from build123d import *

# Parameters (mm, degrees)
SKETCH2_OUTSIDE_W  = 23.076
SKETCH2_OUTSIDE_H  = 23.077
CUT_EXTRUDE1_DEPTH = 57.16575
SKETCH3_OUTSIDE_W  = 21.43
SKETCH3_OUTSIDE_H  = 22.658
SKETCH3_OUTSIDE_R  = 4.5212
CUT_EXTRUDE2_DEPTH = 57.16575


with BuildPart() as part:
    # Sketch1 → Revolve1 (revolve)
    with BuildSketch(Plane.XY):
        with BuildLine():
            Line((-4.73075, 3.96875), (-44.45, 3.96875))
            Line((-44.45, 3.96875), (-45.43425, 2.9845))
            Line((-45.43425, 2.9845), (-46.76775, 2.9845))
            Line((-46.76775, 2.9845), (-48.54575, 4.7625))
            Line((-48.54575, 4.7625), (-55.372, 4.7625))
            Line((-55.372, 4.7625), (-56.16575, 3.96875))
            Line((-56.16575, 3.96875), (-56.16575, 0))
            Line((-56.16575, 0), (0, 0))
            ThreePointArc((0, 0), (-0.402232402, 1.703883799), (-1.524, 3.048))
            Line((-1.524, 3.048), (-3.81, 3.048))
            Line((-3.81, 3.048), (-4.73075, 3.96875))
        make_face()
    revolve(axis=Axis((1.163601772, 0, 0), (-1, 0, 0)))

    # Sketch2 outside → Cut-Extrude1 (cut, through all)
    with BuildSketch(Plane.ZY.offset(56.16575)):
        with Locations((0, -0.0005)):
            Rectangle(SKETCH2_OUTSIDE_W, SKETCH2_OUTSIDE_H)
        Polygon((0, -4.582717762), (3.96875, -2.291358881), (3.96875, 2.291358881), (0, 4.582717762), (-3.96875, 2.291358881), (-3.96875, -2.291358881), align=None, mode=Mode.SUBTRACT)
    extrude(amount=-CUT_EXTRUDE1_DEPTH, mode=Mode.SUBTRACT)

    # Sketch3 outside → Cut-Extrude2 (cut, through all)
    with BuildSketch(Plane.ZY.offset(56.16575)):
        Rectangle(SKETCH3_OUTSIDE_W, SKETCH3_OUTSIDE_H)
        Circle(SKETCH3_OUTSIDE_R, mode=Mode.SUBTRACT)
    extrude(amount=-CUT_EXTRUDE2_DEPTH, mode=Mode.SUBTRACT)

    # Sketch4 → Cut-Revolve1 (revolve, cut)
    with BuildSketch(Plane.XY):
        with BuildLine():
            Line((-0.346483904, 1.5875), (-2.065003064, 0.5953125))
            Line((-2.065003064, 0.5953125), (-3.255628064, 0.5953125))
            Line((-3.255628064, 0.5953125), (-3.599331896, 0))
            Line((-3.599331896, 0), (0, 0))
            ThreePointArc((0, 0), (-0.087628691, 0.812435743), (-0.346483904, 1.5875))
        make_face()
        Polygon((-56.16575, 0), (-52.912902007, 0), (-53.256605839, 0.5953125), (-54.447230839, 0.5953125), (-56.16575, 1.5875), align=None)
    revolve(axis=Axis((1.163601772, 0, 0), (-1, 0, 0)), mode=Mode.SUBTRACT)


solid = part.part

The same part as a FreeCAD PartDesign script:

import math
import FreeCAD as App
import Part
import Sketcher

V = App.Vector
Q = App.Units.Quantity

doc = App.newDocument("Part")
body = doc.addObject("PartDesign::Body", "Body")

sketch1 = doc.addObject("Sketcher::SketchObject", "Sketch")
body.addObject(sketch1)
sketch1.AttachmentSupport = (doc.XY_Plane, [""])
sketch1.MapMode = "FlatFace"
sketch1.addGeometry([
    Part.LineSegment(V(-4.7, 4, 0), V(-44.5, 4, 0)),
    Part.LineSegment(V(-44.5, 4, 0), V(-45.4, 3, 0)),
    Part.LineSegment(V(-45.4, 3, 0), V(-46.8, 3, 0)),
    Part.LineSegment(V(-46.8, 3, 0), V(-48.5, 4.8, 0)),
    Part.LineSegment(V(-48.5, 4.8, 0), V(-55.4, 4.8, 0)),
    Part.LineSegment(V(-55.4, 4.8, 0), V(-56.2, 4, 0)),
    Part.LineSegment(V(-56.2, 4, 0), V(-56.2, 0, 0)),
    Part.LineSegment(V(-56.2, 0, 0), V(0, 0, 0)),
    Part.ArcOfCircle(Part.Circle(V(-3.8, 0, 0), V(0, 0, 1), 3.8), math.radians(0), math.radians(53)),
    Part.LineSegment(V(-1.5, 3, 0), V(-3.8, 3, 0)),
    Part.LineSegment(V(-3.8, 3, 0), V(-4.7, 4, 0)),
], False)
sketch1.addConstraint([
    Sketcher.Constraint("Coincident", 0, 2, 1, 1),
    Sketcher.Constraint("Coincident", 1, 2, 2, 1),
    Sketcher.Constraint("Coincident", 2, 2, 3, 1),
    Sketcher.Constraint("Coincident", 3, 2, 4, 1),
    Sketcher.Constraint("Coincident", 4, 2, 5, 1),
    Sketcher.Constraint("Coincident", 5, 2, 6, 1),
    Sketcher.Constraint("Coincident", 6, 2, 7, 1),
    Sketcher.Constraint("Coincident", 7, 2, 8, 1),
    Sketcher.Constraint("Coincident", 8, 2, 9, 1),
    Sketcher.Constraint("Coincident", 9, 2, 10, 1),
    Sketcher.Constraint("Coincident", 10, 2, 0, 1),
    Sketcher.Constraint("Horizontal", 0),
    Sketcher.Constraint("Horizontal", 2),
    Sketcher.Constraint("Horizontal", 4),
    Sketcher.Constraint("Vertical", 6),
    Sketcher.Constraint("Horizontal", 7),
    Sketcher.Constraint("Horizontal", 9),
    Sketcher.Constraint("Coincident", 7, 2, -1, 1),
    Sketcher.Constraint("PointOnObject", 8, 3, -1),
    Sketcher.Constraint("Perpendicular", 1, 3),
    Sketcher.Constraint("Perpendicular", 3, 5),
    Sketcher.Constraint("Perpendicular", 5, 10),
    Sketcher.Constraint("Horizontal", 0, 2, 5, 2),
    Sketcher.Constraint("Vertical", 8, 3, 9, 2),
    Sketcher.Constraint("Radius", 8, Q("0.15 in")),
    Sketcher.Constraint("Angle", 1, Q("-135 deg")),
    Sketcher.Constraint("DistanceX", 9, 2, 9, 1, Q("0.09 in")),
    Sketcher.Constraint("DistanceX", 0, 2, 8, 3, Q("1.6 in")),
    Sketcher.Constraint("DistanceX", 5, 2, 3, 2, Q("0.3 in")),
    Sketcher.Constraint("DistanceY", 6, 2, 6, 1, Q("0.15625 in")),
    Sketcher.Constraint("DistanceX", 4, 2, -1, 1, Q("2.18 in")),
    Sketcher.Constraint("DistanceX", 3, 2, 2, 2, Q("0.07 in")),
    Sketcher.Constraint("DistanceX", 2, 2, 2, 1, Q("0.0525 in")),
])
revolution = doc.addObject("PartDesign::Revolution", "Revolution")
body.addObject(revolution)
revolution.Profile = sketch1
revolution.ReferenceAxis = (sketch1, ["H_Axis"])
revolution.Angle = 360

sketch2 = doc.addObject("Sketcher::SketchObject", "Sketch001")
body.addObject(sketch2)
sketch2.AttachmentSupport = (doc.YZ_Plane, [""])
sketch2.MapMode = "FlatFace"
sketch2.AttachmentOffset = App.Placement(V(0, 0, -56.16575), App.Rotation())
sketch2.addGeometry([
    Part.LineSegment(V(11.5, -11.5, 0), V(-11.5, -11.5, 0)),
    Part.LineSegment(V(-11.5, -11.5, 0), V(-11.5, 11.5, 0)),
    Part.LineSegment(V(-11.5, 11.5, 0), V(11.5, 11.5, 0)),
    Part.LineSegment(V(11.5, 11.5, 0), V(11.5, -11.5, 0)),
    Part.LineSegment(V(-2.3, 4, 0), V(-4.6, 0, 0)),
    Part.LineSegment(V(-4.6, 0, 0), V(-2.3, -4, 0)),
    Part.LineSegment(V(-2.3, -4, 0), V(2.3, -4, 0)),
    Part.LineSegment(V(2.3, -4, 0), V(4.6, 0, 0)),
    Part.LineSegment(V(4.6, 0, 0), V(2.3, 4, 0)),
    Part.LineSegment(V(2.3, 4, 0), V(-2.3, 4, 0)),
], False)
sketch2.addConstraint([
    Sketcher.Constraint("Coincident", 0, 2, 1, 1),
    Sketcher.Constraint("Coincident", 1, 2, 2, 1),
    Sketcher.Constraint("Coincident", 2, 2, 3, 1),
    Sketcher.Constraint("Coincident", 3, 2, 0, 1),
    Sketcher.Constraint("Coincident", 4, 2, 5, 1),
    Sketcher.Constraint("Coincident", 5, 2, 6, 1),
    Sketcher.Constraint("Coincident", 6, 2, 7, 1),
    Sketcher.Constraint("Coincident", 7, 2, 8, 1),
    Sketcher.Constraint("Coincident", 8, 2, 9, 1),
    Sketcher.Constraint("Coincident", 9, 2, 4, 1),
    Sketcher.Constraint("Horizontal", 0),
    Sketcher.Constraint("Vertical", 1),
    Sketcher.Constraint("Horizontal", 2),
    Sketcher.Constraint("Vertical", 3),
    Sketcher.Constraint("Horizontal", 6),
    Sketcher.Constraint("Horizontal", 9),
    Sketcher.Constraint("Symmetric", 4, 2, 7, 2, -1, 1),
    Sketcher.Constraint("Symmetric", 5, 2, 8, 2, -1, 1),
    Sketcher.Constraint("PointOnObject", 4, 2, -1),
    Sketcher.Constraint("Parallel", 4, 7),
    Sketcher.Constraint("Vertical", 6, 2, 8, 2),
    Sketcher.Constraint("Angle", 4, Q("-120 deg")),
    Sketcher.Constraint("DistanceY", 5, 2, -1, 1, Q("0.15625 in")),
    Sketcher.Constraint("DistanceX", 0, 2, 0, 1, Q("23.077 mm")),
    Sketcher.Constraint("DistanceY", 1, 1, 1, 2, Q("23.076 mm")),
    Sketcher.Constraint("DistanceX", 0, 2, -1, 1, Q("11.539 mm")),
    Sketcher.Constraint("DistanceY", 0, 2, -1, 1, Q("11.538 mm")),
    Sketcher.Constraint("DistanceX", 6, 1, 6, 2, Q("4.582718 mm")),
])
pocket1 = doc.addObject("PartDesign::Pocket", "Pocket")
body.addObject(pocket1)
pocket1.Profile = sketch2
pocket1.Type = "ThroughAll"
pocket1.Reversed = True

sketch3 = doc.addObject("Sketcher::SketchObject", "Sketch002")
body.addObject(sketch3)
sketch3.AttachmentSupport = (doc.YZ_Plane, [""])
sketch3.MapMode = "FlatFace"
sketch3.AttachmentOffset = App.Placement(V(0, 0, -56.16575), App.Rotation())
sketch3.addGeometry([
    Part.LineSegment(V(11.3, -10.7, 0), V(-11.3, -10.7, 0)),
    Part.LineSegment(V(-11.3, -10.7, 0), V(-11.3, 10.7, 0)),
    Part.LineSegment(V(-11.3, 10.7, 0), V(11.3, 10.7, 0)),
    Part.LineSegment(V(11.3, 10.7, 0), V(11.3, -10.7, 0)),
    Part.Circle(V(0, 0, 0), V(0, 0, 1), 4.5),
], False)
sketch3.addConstraint([
    Sketcher.Constraint("Coincident", 0, 2, 1, 1),
    Sketcher.Constraint("Coincident", 1, 2, 2, 1),
    Sketcher.Constraint("Coincident", 2, 2, 3, 1),
    Sketcher.Constraint("Coincident", 3, 2, 0, 1),
    Sketcher.Constraint("Horizontal", 0),
    Sketcher.Constraint("Vertical", 1),
    Sketcher.Constraint("Horizontal", 2),
    Sketcher.Constraint("Vertical", 3),
    Sketcher.Constraint("Coincident", 4, 3, -1, 1),
    Sketcher.Constraint("Symmetric", 0, 2, 2, 2, -1, 1),
    Sketcher.Constraint("Diameter", 4, Q("0.356 in")),
    Sketcher.Constraint("DistanceX", 0, 2, 0, 1, Q("22.658 mm")),
    Sketcher.Constraint("DistanceY", 1, 1, 1, 2, Q("21.43 mm")),
])
pocket2 = doc.addObject("PartDesign::Pocket", "Pocket001")
body.addObject(pocket2)
pocket2.Profile = sketch3
pocket2.Type = "ThroughAll"
pocket2.Reversed = True

sketch4 = doc.addObject("Sketcher::SketchObject", "Sketch003")
body.addObject(sketch4)
sketch4.AttachmentSupport = (doc.XY_Plane, [""])
sketch4.MapMode = "FlatFace"
sketch4.addGeometry([
    Part.LineSegment(V(-0.3, 1.6, 0), V(-2.1, 0.6, 0)),
    Part.LineSegment(V(-2.1, 0.6, 0), V(-3.3, 0.6, 0)),
    Part.LineSegment(V(-3.3, 0.6, 0), V(-3.6, 0, 0)),
    Part.LineSegment(V(-3.6, 0, 0), V(0, 0, 0)),
    Part.ArcOfCircle(Part.Circle(V(-3.8, 0, 0), V(0, 0, 1), 3.8), math.radians(0), math.radians(25)),
    Part.LineSegment(V(-56.2, 0, 0), V(-52.9, 0, 0)),
    Part.LineSegment(V(-52.9, 0, 0), V(-53.3, 0.6, 0)),
    Part.LineSegment(V(-53.3, 0.6, 0), V(-54.4, 0.6, 0)),
    Part.LineSegment(V(-54.4, 0.6, 0), V(-56.2, 1.6, 0)),
    Part.LineSegment(V(-56.2, 1.6, 0), V(-56.2, 0, 0)),
], False)
sketch4.addConstraint([
    Sketcher.Constraint("Coincident", 0, 2, 1, 1),
    Sketcher.Constraint("Coincident", 1, 2, 2, 1),
    Sketcher.Constraint("Coincident", 2, 2, 3, 1),
    Sketcher.Constraint("Coincident", 3, 2, 4, 1),
    Sketcher.Constraint("Coincident", 4, 2, 0, 1),
    Sketcher.Constraint("Coincident", 5, 2, 6, 1),
    Sketcher.Constraint("Coincident", 6, 2, 7, 1),
    Sketcher.Constraint("Coincident", 7, 2, 8, 1),
    Sketcher.Constraint("Coincident", 8, 2, 9, 1),
    Sketcher.Constraint("Coincident", 9, 2, 5, 1),
    Sketcher.Constraint("Horizontal", 1),
    Sketcher.Constraint("Horizontal", 3),
    Sketcher.Constraint("Horizontal", 5),
    Sketcher.Constraint("Horizontal", 7),
    Sketcher.Constraint("Vertical", 9),
    Sketcher.Constraint("Coincident", 3, 2, -1, 1),
    Sketcher.Constraint("PointOnObject", 4, 3, -1),
    Sketcher.Constraint("PointOnObject", 5, 2, -1),
    Sketcher.Constraint("Perpendicular", 0, 6),
    Sketcher.Constraint("Perpendicular", 2, 8),
    Sketcher.Constraint("Horizontal", 1, 2, 6, 2),
    Sketcher.Constraint("Horizontal", 4, 2, 8, 2),
    Sketcher.Constraint("Equal", 1, 7),
    Sketcher.Constraint("Equal", 2, 6),
    Sketcher.Constraint("Radius", 4, Q("0.15 in")),
    Sketcher.Constraint("Angle", 0, Q("-150 deg")),
    Sketcher.Constraint("DistanceX", 1, 2, 1, 1, Q("0.046875 in")),
    Sketcher.Constraint("DistanceY", 9, 2, 9, 1, Q("0.0625 in")),
    Sketcher.Constraint("Distance", 0, Q("0.078125 in")),
    Sketcher.Constraint("DistanceX", 5, 2, 0, 2, Q("50.847899 mm")),
])
groove = doc.addObject("PartDesign::Groove", "Groove")
body.addObject(groove)
groove.Profile = sketch4
groove.ReferenceAxis = (sketch4, ["H_Axis"])
groove.Angle = 360

doc.recompute()
